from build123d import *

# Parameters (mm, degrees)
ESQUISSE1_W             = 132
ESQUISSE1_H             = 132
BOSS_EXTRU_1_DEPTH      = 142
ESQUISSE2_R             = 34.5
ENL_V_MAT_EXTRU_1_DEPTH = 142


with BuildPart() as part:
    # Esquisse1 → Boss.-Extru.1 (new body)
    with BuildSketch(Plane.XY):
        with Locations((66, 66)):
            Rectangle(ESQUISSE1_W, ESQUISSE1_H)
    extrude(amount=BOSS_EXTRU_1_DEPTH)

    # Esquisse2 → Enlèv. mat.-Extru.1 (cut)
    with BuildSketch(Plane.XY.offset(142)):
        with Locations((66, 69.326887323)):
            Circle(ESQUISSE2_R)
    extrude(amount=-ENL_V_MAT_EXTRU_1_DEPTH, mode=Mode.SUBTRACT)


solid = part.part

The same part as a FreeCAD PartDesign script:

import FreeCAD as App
import Part
import Sketcher
Q = App.Units.Quantity


def add_polygon(sketch, points):
    """Adds a closed chain of lines whose ends are joined by coincident constraints."""
    first, n = sketch.GeometryCount, len(points)
    for a, b in zip(points, points[1:] + points[:1]):
        sketch.addGeometry(Part.LineSegment(App.Vector(*a, 0), App.Vector(*b, 0)), False)
    for i in range(n):
        sketch.addConstraint(Sketcher.Constraint("Coincident", first + i, 2, first + (i + 1) % n, 1))

doc = App.newDocument("Part")
params = doc.addObject("Spreadsheet::Sheet", "Params")
for row, (alias, value) in enumerate([
    ("sketch1_width", "132 mm"),
    ("pad1_length", "142 mm"),
    ("sketch2_diameter", "69 mm"),
    ("pocket1_length", "142 mm"),
], start=1):
    params.set(f"A{row}", alias)
    params.set(f"B{row}", "=" + value)
    params.setAlias(f"B{row}", alias)

body = doc.addObject("PartDesign::Body", "Body")

sketch1 = body.newObject("Sketcher::SketchObject", "Sketch")
sketch1.AttachmentSupport = (doc.getObject("XY_Plane"), [""])
sketch1.MapMode = "FlatFace"
add_polygon(sketch1, [(0, 132), (0, 0), (132, 0), (132, 132)])
sketch1.addConstraint([
    Sketcher.Constraint("Vertical", 0),
    Sketcher.Constraint("Horizontal", 1),
    Sketcher.Constraint("Vertical", 2),
    Sketcher.Constraint("Horizontal", 3),
    Sketcher.Constraint("Coincident", 0, 2, -1, 1),
    Sketcher.Constraint("Equal", 3, 0),
    Sketcher.Constraint("DistanceX", 1, 1, 1, 2, Q("132 mm")),
])
sketch1.setExpression("Constraints[10]", "Params.sketch1_width")
pad1 = body.newObject("PartDesign::Pad", "Pad")
pad1.Profile = sketch1
pad1.setExpression("Length", "Params.pad1_length")

sketch2 = body.newObject("Sketcher::SketchObject", "Sketch001")
sketch2.AttachmentSupport = (doc.getObject("XY_Plane"), [""])
sketch2.MapMode = "FlatFace"
sketch2.AttachmentOffset = App.Placement(App.Vector(0, 0, 142), App.Rotation())
sketch2.addGeometry(Part.Circle(App.Vector(66, 69, 0), App.Vector(0, 0, 1), 34), False)
sketch2.addConstraint([
    Sketcher.Constraint("Diameter", 0, Q("69 mm")),
    Sketcher.Constraint("DistanceX", -1, 1, 0, 3, Q("66 mm")),
    Sketcher.Constraint("DistanceY", -1, 1, 0, 3, Q("69.326887 mm")),
])
sketch2.setExpression("Constraints[0]", "Params.sketch2_diameter")
pocket1 = body.newObject("PartDesign::Pocket", "Pocket")
pocket1.Profile = sketch2
pocket1.setExpression("Length", "Params.pocket1_length")

doc.recompute()
